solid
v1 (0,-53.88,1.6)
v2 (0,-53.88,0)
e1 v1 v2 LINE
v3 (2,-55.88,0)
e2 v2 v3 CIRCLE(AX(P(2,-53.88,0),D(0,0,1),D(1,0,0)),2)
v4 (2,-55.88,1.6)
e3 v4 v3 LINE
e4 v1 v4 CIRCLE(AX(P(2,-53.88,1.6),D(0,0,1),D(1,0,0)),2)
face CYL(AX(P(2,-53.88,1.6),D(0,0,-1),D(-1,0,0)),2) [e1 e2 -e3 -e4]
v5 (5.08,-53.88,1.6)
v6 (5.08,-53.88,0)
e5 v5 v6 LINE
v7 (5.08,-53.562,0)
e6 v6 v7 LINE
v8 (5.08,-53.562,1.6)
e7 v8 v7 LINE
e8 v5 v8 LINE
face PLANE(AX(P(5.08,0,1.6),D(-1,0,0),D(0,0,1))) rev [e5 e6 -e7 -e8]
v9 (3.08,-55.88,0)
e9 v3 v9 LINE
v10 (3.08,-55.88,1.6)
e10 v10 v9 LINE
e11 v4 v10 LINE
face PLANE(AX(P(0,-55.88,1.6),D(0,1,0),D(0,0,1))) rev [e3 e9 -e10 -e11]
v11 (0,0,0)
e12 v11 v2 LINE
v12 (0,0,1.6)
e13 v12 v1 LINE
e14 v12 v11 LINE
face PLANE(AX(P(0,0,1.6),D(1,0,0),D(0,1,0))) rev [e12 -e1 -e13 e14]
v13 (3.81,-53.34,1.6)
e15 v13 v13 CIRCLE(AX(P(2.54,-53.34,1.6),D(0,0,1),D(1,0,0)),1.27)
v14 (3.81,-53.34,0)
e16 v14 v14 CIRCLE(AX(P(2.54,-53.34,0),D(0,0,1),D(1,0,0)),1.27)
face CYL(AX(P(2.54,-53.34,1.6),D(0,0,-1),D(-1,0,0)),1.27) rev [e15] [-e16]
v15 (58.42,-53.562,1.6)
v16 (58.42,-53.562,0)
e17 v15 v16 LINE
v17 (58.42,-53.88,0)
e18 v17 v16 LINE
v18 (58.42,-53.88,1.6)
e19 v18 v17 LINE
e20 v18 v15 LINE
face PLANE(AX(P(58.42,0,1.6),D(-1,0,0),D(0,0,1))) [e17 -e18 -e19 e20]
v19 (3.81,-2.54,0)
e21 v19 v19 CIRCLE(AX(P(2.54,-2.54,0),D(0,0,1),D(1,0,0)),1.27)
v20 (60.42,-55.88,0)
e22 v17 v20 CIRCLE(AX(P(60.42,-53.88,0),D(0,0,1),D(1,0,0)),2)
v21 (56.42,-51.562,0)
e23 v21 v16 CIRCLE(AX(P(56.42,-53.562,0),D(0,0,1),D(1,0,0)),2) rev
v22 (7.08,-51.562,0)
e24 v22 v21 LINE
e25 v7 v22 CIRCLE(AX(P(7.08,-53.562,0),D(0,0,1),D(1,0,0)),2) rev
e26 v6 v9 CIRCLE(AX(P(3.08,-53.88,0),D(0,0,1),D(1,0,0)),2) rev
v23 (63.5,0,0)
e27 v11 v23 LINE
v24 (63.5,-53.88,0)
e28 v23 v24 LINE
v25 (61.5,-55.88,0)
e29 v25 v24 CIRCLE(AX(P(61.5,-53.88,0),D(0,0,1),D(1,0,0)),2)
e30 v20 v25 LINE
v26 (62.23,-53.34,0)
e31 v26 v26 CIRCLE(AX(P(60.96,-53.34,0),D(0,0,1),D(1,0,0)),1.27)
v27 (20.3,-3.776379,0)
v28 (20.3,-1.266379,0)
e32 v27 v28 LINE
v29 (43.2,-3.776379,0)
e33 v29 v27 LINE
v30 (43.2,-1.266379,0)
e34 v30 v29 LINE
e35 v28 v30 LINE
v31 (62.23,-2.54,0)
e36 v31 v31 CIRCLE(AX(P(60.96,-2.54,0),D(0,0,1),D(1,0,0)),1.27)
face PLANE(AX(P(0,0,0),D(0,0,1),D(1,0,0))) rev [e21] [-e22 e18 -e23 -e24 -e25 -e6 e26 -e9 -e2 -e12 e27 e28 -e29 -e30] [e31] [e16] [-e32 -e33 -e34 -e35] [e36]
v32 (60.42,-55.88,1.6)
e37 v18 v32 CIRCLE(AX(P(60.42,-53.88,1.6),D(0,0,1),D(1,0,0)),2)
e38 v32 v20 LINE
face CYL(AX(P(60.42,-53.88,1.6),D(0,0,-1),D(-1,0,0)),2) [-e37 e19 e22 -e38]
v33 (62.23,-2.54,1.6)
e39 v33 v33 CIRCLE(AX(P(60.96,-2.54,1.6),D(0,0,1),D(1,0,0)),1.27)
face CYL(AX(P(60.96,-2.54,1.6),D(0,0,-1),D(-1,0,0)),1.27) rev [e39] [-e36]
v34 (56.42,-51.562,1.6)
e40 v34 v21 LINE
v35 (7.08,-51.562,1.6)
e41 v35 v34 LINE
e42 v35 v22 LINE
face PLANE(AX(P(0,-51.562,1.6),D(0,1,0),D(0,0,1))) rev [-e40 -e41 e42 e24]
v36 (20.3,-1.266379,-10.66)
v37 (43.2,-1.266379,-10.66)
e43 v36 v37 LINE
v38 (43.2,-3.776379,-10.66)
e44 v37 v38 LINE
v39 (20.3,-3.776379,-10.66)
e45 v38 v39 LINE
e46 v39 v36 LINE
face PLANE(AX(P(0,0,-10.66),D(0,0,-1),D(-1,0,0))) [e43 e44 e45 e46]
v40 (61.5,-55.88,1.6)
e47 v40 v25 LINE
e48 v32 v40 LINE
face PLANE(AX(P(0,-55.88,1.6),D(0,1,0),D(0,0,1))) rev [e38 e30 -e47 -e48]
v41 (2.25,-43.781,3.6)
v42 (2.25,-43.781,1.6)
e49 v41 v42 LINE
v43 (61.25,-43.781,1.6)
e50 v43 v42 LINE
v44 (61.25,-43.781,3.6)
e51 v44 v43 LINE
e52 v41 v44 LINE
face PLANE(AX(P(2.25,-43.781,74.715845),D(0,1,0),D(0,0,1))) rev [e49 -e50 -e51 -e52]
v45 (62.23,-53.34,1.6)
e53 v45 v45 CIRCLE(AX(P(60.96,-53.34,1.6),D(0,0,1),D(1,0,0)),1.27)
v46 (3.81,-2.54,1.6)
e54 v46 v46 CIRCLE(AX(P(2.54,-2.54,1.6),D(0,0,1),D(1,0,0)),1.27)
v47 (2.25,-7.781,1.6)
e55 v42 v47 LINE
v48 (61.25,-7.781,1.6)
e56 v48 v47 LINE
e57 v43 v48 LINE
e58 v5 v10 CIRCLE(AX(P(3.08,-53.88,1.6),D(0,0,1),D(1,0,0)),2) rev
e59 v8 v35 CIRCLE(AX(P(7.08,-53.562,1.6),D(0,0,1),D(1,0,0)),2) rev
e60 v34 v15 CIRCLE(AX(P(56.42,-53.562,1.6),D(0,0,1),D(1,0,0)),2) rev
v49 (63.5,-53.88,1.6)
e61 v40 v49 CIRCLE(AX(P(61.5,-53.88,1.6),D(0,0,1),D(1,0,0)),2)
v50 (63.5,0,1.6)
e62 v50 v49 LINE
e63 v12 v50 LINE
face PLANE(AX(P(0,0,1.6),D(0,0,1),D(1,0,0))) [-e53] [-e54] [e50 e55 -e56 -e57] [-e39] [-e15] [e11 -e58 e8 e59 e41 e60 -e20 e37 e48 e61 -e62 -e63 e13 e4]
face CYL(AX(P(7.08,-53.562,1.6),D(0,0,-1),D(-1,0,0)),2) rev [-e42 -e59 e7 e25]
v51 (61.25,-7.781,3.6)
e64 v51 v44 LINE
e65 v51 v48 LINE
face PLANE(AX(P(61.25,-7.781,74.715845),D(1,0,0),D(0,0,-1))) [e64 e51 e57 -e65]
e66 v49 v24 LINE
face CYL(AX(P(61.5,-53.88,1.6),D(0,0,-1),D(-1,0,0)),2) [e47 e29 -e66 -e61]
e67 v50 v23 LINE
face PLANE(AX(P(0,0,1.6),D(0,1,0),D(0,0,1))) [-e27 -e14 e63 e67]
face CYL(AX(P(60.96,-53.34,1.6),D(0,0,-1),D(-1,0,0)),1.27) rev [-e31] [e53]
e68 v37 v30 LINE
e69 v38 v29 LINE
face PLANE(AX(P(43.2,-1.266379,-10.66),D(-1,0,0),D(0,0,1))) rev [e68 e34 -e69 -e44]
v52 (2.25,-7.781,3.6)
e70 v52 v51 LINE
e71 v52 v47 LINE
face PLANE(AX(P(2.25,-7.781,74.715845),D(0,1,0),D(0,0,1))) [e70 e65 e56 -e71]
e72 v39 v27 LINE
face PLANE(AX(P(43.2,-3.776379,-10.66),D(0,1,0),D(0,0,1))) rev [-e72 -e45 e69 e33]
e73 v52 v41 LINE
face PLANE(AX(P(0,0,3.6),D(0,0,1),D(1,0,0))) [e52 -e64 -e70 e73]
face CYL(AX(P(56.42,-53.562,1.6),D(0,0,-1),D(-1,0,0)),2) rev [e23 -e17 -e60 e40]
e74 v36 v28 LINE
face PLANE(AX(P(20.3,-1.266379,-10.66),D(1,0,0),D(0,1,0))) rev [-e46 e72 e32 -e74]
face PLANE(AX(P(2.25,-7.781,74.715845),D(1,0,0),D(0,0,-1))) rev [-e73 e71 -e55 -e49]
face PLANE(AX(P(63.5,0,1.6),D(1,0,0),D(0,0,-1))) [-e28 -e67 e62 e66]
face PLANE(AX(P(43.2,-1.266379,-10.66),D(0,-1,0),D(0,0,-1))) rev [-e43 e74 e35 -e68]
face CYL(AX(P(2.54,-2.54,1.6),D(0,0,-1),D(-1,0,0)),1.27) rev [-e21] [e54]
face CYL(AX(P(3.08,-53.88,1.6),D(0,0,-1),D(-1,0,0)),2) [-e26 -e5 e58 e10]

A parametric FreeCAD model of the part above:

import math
import FreeCAD as App
import Part
import Sketcher
from FreeCAD import Vector

doc = App.newDocument("Part")
body = doc.addObject("PartDesign::Body", "Body")

# Sketch on XY plane
sketch1 = body.newObject("Sketcher::SketchObject", "Sketch")
sketch1.AttachmentSupport = (doc.getObject("XY_Plane"), [""])
sketch1.MapMode = "FlatFace"
sketch1.addGeometry([
    Part.LineSegment(Vector(0, 0, 0), Vector(0, -53.88, 0)),  # 0
    Part.ArcOfCircle(Part.Circle(Vector(2, -53.88, 0), Vector(0, 0, 1), 2), math.radians(-180), math.radians(-90)),  # 1
    Part.LineSegment(Vector(2, -55.88, 0), Vector(3.08, -55.88, 0)),  # 2
    Part.ArcOfCircle(Part.Circle(Vector(3.08, -53.88, 0), Vector(0, 0, 1), 2), math.radians(-90), math.radians(0)),  # 3
    Part.LineSegment(Vector(5.08, -53.88, 0), Vector(5.08, -53.56, 0)),  # 4
    Part.ArcOfCircle(Part.Circle(Vector(7.08, -53.56, 0), Vector(0, 0, 1), 2), math.radians(90), math.radians(180)),  # 5
    Part.LineSegment(Vector(7.08, -51.56, 0), Vector(56.42, -51.56, 0)),  # 6
    Part.ArcOfCircle(Part.Circle(Vector(56.42, -53.56, 0), Vector(0, 0, 1), 2), math.radians(0), math.radians(90)),  # 7
    Part.LineSegment(Vector(58.42, -53.56, 0), Vector(58.42, -53.88, 0)),  # 8
    Part.ArcOfCircle(Part.Circle(Vector(60.42, -53.88, 0), Vector(0, 0, 1), 2), math.radians(-180), math.radians(-90)),  # 9
    Part.LineSegment(Vector(60.42, -55.88, 0), Vector(61.5, -55.88, 0)),  # 10
    Part.ArcOfCircle(Part.Circle(Vector(61.5, -53.88, 0), Vector(0, 0, 1), 2), math.radians(-90), math.radians(0)),  # 11
    Part.LineSegment(Vector(63.5, -53.88, 0), Vector(63.5, 0, 0)),  # 12
    Part.LineSegment(Vector(63.5, 0, 0), Vector(0, 0, 0)),  # 13
    Part.Circle(Vector(2.54, -53.34, 0), Vector(0, 0, 1), 1.27),  # 14
    Part.Circle(Vector(60.96, -53.34, 0), Vector(0, 0, 1), 1.27),  # 15
    Part.Circle(Vector(2.54, -2.54, 0), Vector(0, 0, 1), 1.27),  # 16
    Part.Circle(Vector(60.96, -2.54, 0), Vector(0, 0, 1), 1.27),  # 17
], False)
sketch1.addConstraint([
    Sketcher.Constraint("Tangent", 0, 2, 1, 1),
    Sketcher.Constraint("Tangent", 1, 2, 2, 1),
    Sketcher.Constraint("Tangent", 2, 2, 3, 1),
    Sketcher.Constraint("Tangent", 3, 2, 4, 1),
    Sketcher.Constraint("Tangent", 4, 2, 5, 2),
    Sketcher.Constraint("Tangent", 5, 1, 6, 1),
    Sketcher.Constraint("Tangent", 6, 2, 7, 2),
    Sketcher.Constraint("Tangent", 7, 1, 8, 1),
    Sketcher.Constraint("Tangent", 8, 2, 9, 1),
    Sketcher.Constraint("Tangent", 9, 2, 10, 1),
    Sketcher.Constraint("Tangent", 10, 2, 11, 1),
    Sketcher.Constraint("Tangent", 11, 2, 12, 1),
    Sketcher.Constraint("Coincident", 12, 2, 13, 1),
    Sketcher.Constraint("Coincident", 13, 2, 0, 1),
    Sketcher.Constraint("Vertical", 0),
    Sketcher.Constraint("Horizontal", 2),
    Sketcher.Constraint("Vertical", 4),
    Sketcher.Constraint("Horizontal", 6),
    Sketcher.Constraint("Vertical", 8),
    Sketcher.Constraint("Horizontal", 10),
    Sketcher.Constraint("Vertical", 12),
    Sketcher.Constraint("Horizontal", 13),
    Sketcher.Constraint("Coincident", 13, 2, -1, 1),
    Sketcher.Constraint("Equal", 1, 3),
    Sketcher.Constraint("Equal", 3, 5),
    Sketcher.Constraint("Equal", 5, 7),
    Sketcher.Constraint("Equal", 7, 9),
    Sketcher.Constraint("Equal", 9, 11),
    Sketcher.Constraint("Equal", 14, 15),
    Sketcher.Constraint("Equal", 15, 16),
    Sketcher.Constraint("Equal", 16, 17),
    Sketcher.Constraint("Horizontal", 3, 3, 9, 3),
    Sketcher.Constraint("Horizontal", 14, 3, 15, 3),
    Sketcher.Constraint("Horizontal", 16, 3, 17, 3),
    Sketcher.Constraint("Vertical", 14, 3, 16, 3),
    Sketcher.Constraint("Vertical", 15, 3, 17, 3),
    Sketcher.Constraint("Equal", 2, 10),
    Sketcher.Constraint("Radius", 1, 2.0),
    Sketcher.Constraint("Diameter", 14, 2.54),
    Sketcher.Constraint("DistanceX", 13, 2, 13, 1, 63.5),
    Sketcher.Constraint("DistanceX", 2, 1, 2, 2, 1.08),
    Sketcher.Constraint("DistanceY", 0, 2, 0, 1, 53.88),
    Sketcher.Constraint("DistanceY", 14, 3, 16, 3, 50.8),
    Sketcher.Constraint("DistanceY", 4, 1, 4, 2, 0.318),
    Sketcher.Constraint("DistanceX", -1, 1, 14, 3, 2.54),
    Sketcher.Constraint("DistanceY", 14, 3, -1, 1, 53.34),
    Sketcher.Constraint("DistanceX", -1, 1, 15, 3, 60.96),
])
pad1 = body.newObject("PartDesign::Pad", "Pad")
pad1.Profile = sketch1
pad1.Length = 1.6

# Sketch on XY plane
sketch2 = body.newObject("Sketcher::SketchObject", "Sketch001")
sketch2.AttachmentSupport = (doc.getObject("XY_Plane"), [""])
sketch2.MapMode = "FlatFace"
sketch2.addGeometry([
    Part.LineSegment(Vector(2, -8, 0), Vector(2, -44, 0)),
    Part.LineSegment(Vector(2, -44, 0), Vector(61, -44, 0)),
    Part.LineSegment(Vector(61, -44, 0), Vector(61, -8, 0)),
    Part.LineSegment(Vector(61, -8, 0), Vector(2, -8, 0)),
], False)
sketch2.addConstraint([
    Sketcher.Constraint("Coincident", 0, 2, 1, 1),
    Sketcher.Constraint("Coincident", 1, 2, 2, 1),
    Sketcher.Constraint("Coincident", 2, 2, 3, 1),
    Sketcher.Constraint("Coincident", 3, 2, 0, 1),
    Sketcher.Constraint("Vertical", 0),
    Sketcher.Constraint("Horizontal", 1),
    Sketcher.Constraint("Vertical", 2),
    Sketcher.Constraint("Horizontal", 3),
    Sketcher.Constraint("DistanceX", 1, 1, 1, 2, 59.0),
    Sketcher.Constraint("DistanceY", 0, 2, 0, 1, 36.0),
    Sketcher.Constraint("DistanceX", -1, 1, 0, 2, 2.25),
    Sketcher.Constraint("DistanceY", 0, 2, -1, 1, 43.781),
])
pad2 = body.newObject("PartDesign::Pad", "Pad001")
pad2.Profile = sketch2
pad2.Length = 3.6

# Sketch on XY plane
sketch3 = body.newObject("Sketcher::SketchObject", "Sketch002")
sketch3.AttachmentSupport = (doc.getObject("XY_Plane"), [""])
sketch3.MapMode = "FlatFace"
sketch3.addGeometry([
    Part.LineSegment(Vector(43.2, -1.3, 0), Vector(43.2, -3.8, 0)),
    Part.LineSegment(Vector(43.2, -3.8, 0), Vector(20.3, -3.8, 0)),
    Part.LineSegment(Vector(20.3, -3.8, 0), Vector(20.3, -1.3, 0)),
    Part.LineSegment(Vector(20.3, -1.3, 0), Vector(43.2, -1.3, 0)),
], False)
sketch3.addConstraint([
    Sketcher.Constraint("Coincident", 0, 2, 1, 1),
    Sketcher.Constraint("Coincident", 1, 2, 2, 1),
    Sketcher.Constraint("Coincident", 2, 2, 3, 1),
    Sketcher.Constraint("Coincident", 3, 2, 0, 1),
    Sketcher.Constraint("Vertical", 0),
    Sketcher.Constraint("Horizontal", 1),
    Sketcher.Constraint("Vertical", 2),
    Sketcher.Constraint("Horizontal", 3),
    Sketcher.Constraint("DistanceX", 1, 2, 1, 1, 22.9),
    Sketcher.Constraint("DistanceY", 0, 2, 0, 1, 2.51),
    Sketcher.Constraint("DistanceX", -1, 1, 0, 2, 43.2),
    Sketcher.Constraint("DistanceY", 0, 2, -1, 1, 3.776379),
])
pad3 = body.newObject("PartDesign::Pad", "Pad002")
pad3.Profile = sketch3
pad3.Length = 10.66
pad3.Reversed = True

doc.recompute()
